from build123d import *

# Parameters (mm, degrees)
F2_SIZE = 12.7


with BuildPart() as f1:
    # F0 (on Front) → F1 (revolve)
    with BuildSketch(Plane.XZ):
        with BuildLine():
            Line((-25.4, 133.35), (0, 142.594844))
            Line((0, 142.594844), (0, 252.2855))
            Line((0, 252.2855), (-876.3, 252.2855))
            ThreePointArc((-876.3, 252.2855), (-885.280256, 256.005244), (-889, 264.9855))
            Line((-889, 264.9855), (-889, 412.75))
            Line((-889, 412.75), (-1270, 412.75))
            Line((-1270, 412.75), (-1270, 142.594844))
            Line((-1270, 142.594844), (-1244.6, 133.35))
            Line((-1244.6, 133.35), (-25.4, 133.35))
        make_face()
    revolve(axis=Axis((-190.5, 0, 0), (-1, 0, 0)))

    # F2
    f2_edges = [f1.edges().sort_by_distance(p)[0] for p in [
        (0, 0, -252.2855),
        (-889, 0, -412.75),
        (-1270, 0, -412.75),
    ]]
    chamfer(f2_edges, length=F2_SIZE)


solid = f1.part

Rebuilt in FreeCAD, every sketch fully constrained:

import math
import FreeCAD as App
import Part
import Sketcher

V = App.Vector
Q = App.Units.Quantity


def edges_at(feature, points):
    """Names of the edges that pass closest to the given points."""
    edges = feature.Shape.Edges
    near = lambda p: min(range(len(edges)), key=lambda i: edges[i].distToShape(Part.Vertex(*p))[0])
    return sorted({f"Edge{near(p) + 1}" for p in points})

doc = App.newDocument("Part")
body = doc.addObject("PartDesign::Body", "Body")

sketch1 = body.newObject("Sketcher::SketchObject", "Sketch")
sketch1.AttachmentSupport = (doc.getObject("XZ_Plane"), [""])
sketch1.MapMode = "FlatFace"
sketch1.addGeometry(Part.LineSegment(V(-25.4, 133.35, 0), V(0, 142.594844, 0)), False)
sketch1.addGeometry(Part.LineSegment(V(0, 142.594844, 0), V(0, 252.2855, 0)), False)
sketch1.addGeometry(Part.LineSegment(V(0, 252.2855, 0), V(-876.3, 252.2855, 0)), False)
sketch1.addGeometry(Part.ArcOfCircle(Part.Circle(V(-876.3, 264.9855, 0), V(0, 0, 1), 12.7), math.radians(-179.999998), math.radians(-90.000002)), False)
sketch1.addGeometry(Part.LineSegment(V(-889, 264.9855, 0), V(-889, 412.75, 0)), False)
sketch1.addGeometry(Part.LineSegment(V(-889, 412.75, 0), V(-1270, 412.75, 0)), False)
sketch1.addGeometry(Part.LineSegment(V(-1270, 412.75, 0), V(-1270, 142.594844, 0)), False)
sketch1.addGeometry(Part.LineSegment(V(-1270, 142.594844, 0), V(-1244.6, 133.35, 0)), False)
sketch1.addGeometry(Part.LineSegment(V(-1244.6, 133.35, 0), V(-25.4, 133.35, 0)), False)
sketch1.addConstraint(Sketcher.Constraint("Coincident", 0, 2, 1, 1))
sketch1.addConstraint(Sketcher.Constraint("Coincident", 1, 2, 2, 1))
sketch1.addConstraint(Sketcher.Constraint("Tangent", 2, 2, 3, 2))
sketch1.addConstraint(Sketcher.Constraint("Tangent", 3, 1, 4, 1))
sketch1.addConstraint(Sketcher.Constraint("Coincident", 4, 2, 5, 1))
sketch1.addConstraint(Sketcher.Constraint("Coincident", 5, 2, 6, 1))
sketch1.addConstraint(Sketcher.Constraint("Coincident", 6, 2, 7, 1))
sketch1.addConstraint(Sketcher.Constraint("Coincident", 7, 2, 8, 1))
sketch1.addConstraint(Sketcher.Constraint("Coincident", 8, 2, 0, 1))
sketch1.addConstraint(Sketcher.Constraint("Vertical", 1))
sketch1.addConstraint(Sketcher.Constraint("Horizontal", 2))
sketch1.addConstraint(Sketcher.Constraint("Vertical", 4))
sketch1.addConstraint(Sketcher.Constraint("Horizontal", 5))
sketch1.addConstraint(Sketcher.Constraint("Vertical", 6))
sketch1.addConstraint(Sketcher.Constraint("Horizontal", 8))
sketch1.addConstraint(Sketcher.Constraint("PointOnObject", 0, 2, -2))
sketch1.addConstraint(Sketcher.Constraint("Horizontal", 0, 2, 6, 2))
sketch1.addConstraint(Sketcher.Constraint("Equal", 0, 7))
sketch1.addConstraint(Sketcher.Constraint("Radius", 3, Q("0.5 in")))
sketch1.addConstraint(Sketcher.Constraint("DistanceX", 5, 2, 5, 1, Q("15 in")))
sketch1.addConstraint(Sketcher.Constraint("DistanceX", 8, 1, 8, 2, Q("48 in")))
sketch1.addConstraint(Sketcher.Constraint("DistanceX", 2, 2, 2, 1, Q("34.5 in")))
sketch1.addConstraint(Sketcher.Constraint("Angle", 0, Q("20 deg")))
sketch1.addConstraint(Sketcher.Constraint("DistanceY", 7, 2, 5, 2, Q("11 in")))
sketch1.addConstraint(Sketcher.Constraint("DistanceY", -1, 1, 4, 2, Q("16.25 in")))
sketch1.addConstraint(Sketcher.Constraint("DistanceY", 4, 1, 4, 2, Q("5.8175 in")))
revolution = body.newObject("PartDesign::Revolution", "Revolution")
revolution.Profile = sketch1
revolution.ReferenceAxis = (sketch1, ["H_Axis"])
revolution.Angle = 360
doc.recompute()

chamfer = body.newObject("PartDesign::Chamfer", "Chamfer")
chamfer.Base = (revolution, edges_at(revolution, [(0, 0, -252.286), (-889, 0, -412.75), (-1270, 0, -412.75)]))
chamfer.Size = Q("0.5 in")

doc.recompute()
